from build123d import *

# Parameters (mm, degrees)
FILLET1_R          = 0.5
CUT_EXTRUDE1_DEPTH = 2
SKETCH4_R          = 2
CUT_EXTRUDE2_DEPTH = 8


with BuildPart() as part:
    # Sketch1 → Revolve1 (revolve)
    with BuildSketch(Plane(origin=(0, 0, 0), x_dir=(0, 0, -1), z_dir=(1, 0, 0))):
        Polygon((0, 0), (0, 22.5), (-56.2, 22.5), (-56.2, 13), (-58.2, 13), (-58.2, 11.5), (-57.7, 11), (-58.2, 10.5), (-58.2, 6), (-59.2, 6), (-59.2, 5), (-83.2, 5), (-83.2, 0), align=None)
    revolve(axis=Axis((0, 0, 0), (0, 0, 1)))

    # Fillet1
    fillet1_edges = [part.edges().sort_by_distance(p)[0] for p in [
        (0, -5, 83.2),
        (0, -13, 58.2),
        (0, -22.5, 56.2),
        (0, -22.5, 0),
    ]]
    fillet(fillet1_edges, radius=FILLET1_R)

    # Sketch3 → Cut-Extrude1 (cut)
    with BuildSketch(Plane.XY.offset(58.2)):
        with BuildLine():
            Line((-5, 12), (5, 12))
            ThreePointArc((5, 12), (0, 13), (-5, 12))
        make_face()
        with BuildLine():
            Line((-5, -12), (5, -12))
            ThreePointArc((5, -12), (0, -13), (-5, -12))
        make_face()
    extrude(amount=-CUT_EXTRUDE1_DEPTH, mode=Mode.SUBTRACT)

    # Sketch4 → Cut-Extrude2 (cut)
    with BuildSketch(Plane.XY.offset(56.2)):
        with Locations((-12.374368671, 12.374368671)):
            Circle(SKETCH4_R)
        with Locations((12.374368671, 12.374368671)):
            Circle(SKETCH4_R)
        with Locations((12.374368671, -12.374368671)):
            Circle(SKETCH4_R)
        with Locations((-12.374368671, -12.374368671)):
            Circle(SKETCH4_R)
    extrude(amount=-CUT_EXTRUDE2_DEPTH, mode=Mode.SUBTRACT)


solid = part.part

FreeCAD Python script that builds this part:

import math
import FreeCAD as App
import Part
import Sketcher
from FreeCAD import Vector


def edges_at(feature, points):
    """Names of the edges that pass closest to the given points."""
    edges = feature.Shape.Edges
    near = lambda p: min(range(len(edges)), key=lambda i: edges[i].distToShape(Part.Vertex(*p))[0])
    return sorted({f"Edge{near(p) + 1}" for p in points})


def add_polygon(sketch, points):
    """Adds a closed chain of lines whose ends are joined by coincident constraints."""
    first, n = sketch.GeometryCount, len(points)
    for a, b in zip(points, points[1:] + points[:1]):
        sketch.addGeometry(Part.LineSegment(App.Vector(*a, 0), App.Vector(*b, 0)), False)
    for i in range(n):
        sketch.addConstraint(Sketcher.Constraint("Coincident", first + i, 2, first + (i + 1) % n, 1))

doc = App.newDocument("Part")
body = doc.addObject("PartDesign::Body", "Body")

# Sketch on YZ plane
sketch1 = doc.addObject("Sketcher::SketchObject", "Sketch")
body.addObject(sketch1)
sketch1.AttachmentSupport = (doc.YZ_Plane, [""])
sketch1.MapMode = "FlatFace"
add_polygon(sketch1, [(0, 0), (22.5, 0), (22.5, 56.2), (13, 56.2), (13, 58.2), (11.5, 58.2), (11, 57.7), (10.5, 58.2), (6, 58.2), (6, 59.2), (5, 59.2), (5, 83.2), (0, 83.2)])  # lines 0-12
sketch1.addConstraint(Sketcher.Constraint("Horizontal", 0))
sketch1.addConstraint(Sketcher.Constraint("Vertical", 1))
sketch1.addConstraint(Sketcher.Constraint("Horizontal", 2))
sketch1.addConstraint(Sketcher.Constraint("Vertical", 3))
sketch1.addConstraint(Sketcher.Constraint("Horizontal", 4))
sketch1.addConstraint(Sketcher.Constraint("Horizontal", 7))
sketch1.addConstraint(Sketcher.Constraint("Vertical", 8))
sketch1.addConstraint(Sketcher.Constraint("Horizontal", 9))
sketch1.addConstraint(Sketcher.Constraint("Vertical", 10))
sketch1.addConstraint(Sketcher.Constraint("Horizontal", 11))
sketch1.addConstraint(Sketcher.Constraint("Vertical", 12))
sketch1.addConstraint(Sketcher.Constraint("Coincident", 12, 2, -1, 1))
sketch1.addConstraint(Sketcher.Constraint("Perpendicular", 5, 6))
sketch1.addConstraint(Sketcher.Constraint("Horizontal", 4, 2, 6, 2))
sketch1.addConstraint(Sketcher.Constraint("Equal", 9, 8))
sketch1.addConstraint(Sketcher.Constraint("Equal", 5, 6))
sketch1.addConstraint(Sketcher.Constraint("DistanceX", 9, 2, 9, 1, 1.0))
sketch1.addConstraint(Sketcher.Constraint("DistanceX", 11, 2, 11, 1, 5.0))
sketch1.addConstraint(Sketcher.Constraint("DistanceY", 3, 1, 3, 2, 2.0))
sketch1.addConstraint(Sketcher.Constraint("DistanceY", 10, 1, 10, 2, 24.0))
sketch1.addConstraint(Sketcher.Constraint("DistanceX", 0, 1, 0, 2, 22.5))
sketch1.addConstraint(Sketcher.Constraint("DistanceX", 2, 2, 2, 1, 9.5))
sketch1.addConstraint(Sketcher.Constraint("DistanceX", 4, 2, 4, 1, 1.5))
sketch1.addConstraint(Sketcher.Constraint("DistanceX", 7, 2, 7, 1, 4.5))
sketch1.addConstraint(Sketcher.Constraint("DistanceY", 1, 1, 1, 2, 56.2))
revolution = doc.addObject("PartDesign::Revolution", "Revolution")
body.addObject(revolution)
revolution.Profile = sketch1
revolution.ReferenceAxis = (sketch1, ["V_Axis"])
revolution.Angle = 360
doc.recompute()

fillet = doc.addObject("PartDesign::Fillet", "Fillet")
body.addObject(fillet)
fillet.Base = (revolution, edges_at(revolution, [
    (0, -5, 83.2),
    (0, -13, 58.2),
    (0, -22.5, 56.2),
    (0, -22.5, 0),
]))
fillet.Radius = 0.5

# Sketch on XY plane
sketch2 = doc.addObject("Sketcher::SketchObject", "Sketch001")
body.addObject(sketch2)
sketch2.AttachmentSupport = (doc.XY_Plane, [""])
sketch2.MapMode = "FlatFace"
sketch2.AttachmentOffset = App.Placement(Vector(0, 0, 58.2), App.Rotation())
sketch2.addGeometry(Part.LineSegment(Vector(-5, 12, 0), Vector(5, 12, 0)), False)
sketch2.addGeometry(Part.ArcOfCircle(Part.Circle(Vector(0, 0, 0), Vector(0, 0, 1), 13), math.radians(67.380135), math.radians(112.619865)), False)
sketch2.addGeometry(Part.LineSegment(Vector(5, -12, 0), Vector(-5, -12, 0)), False)
sketch2.addGeometry(Part.ArcOfCircle(Part.Circle(Vector(0, 0, 0), Vector(0, 0, 1), 13), math.radians(-112.619865), math.radians(-67.380135)), False)
sketch2.addConstraint(Sketcher.Constraint("Coincident", 0, 1, 1, 2))
sketch2.addConstraint(Sketcher.Constraint("Coincident", 1, 1, 0, 2))
sketch2.addConstraint(Sketcher.Constraint("Coincident", 2, 1, 3, 2))
sketch2.addConstraint(Sketcher.Constraint("Coincident", 3, 1, 2, 2))
sketch2.addConstraint(Sketcher.Constraint("Horizontal", 0))
sketch2.addConstraint(Sketcher.Constraint("Horizontal", 2))
sketch2.addConstraint(Sketcher.Constraint("Coincident", 1, 3, -1, 1))
sketch2.addConstraint(Sketcher.Constraint("Coincident", 3, 3, -1, 1))
sketch2.addConstraint(Sketcher.Constraint("Equal", 1, 3))
sketch2.addConstraint(Sketcher.Constraint("Vertical", 1, 1, 2, 1))
sketch2.addConstraint(Sketcher.Constraint("Radius", 1, 13.0))
sketch2.addConstraint(Sketcher.Constraint("DistanceX", 0, 1, 0, 2, 10.0))
pocket1 = doc.addObject("PartDesign::Pocket", "Pocket")
body.addObject(pocket1)
pocket1.Profile = sketch2
pocket1.Length = 2

# Sketch on XY plane
sketch3 = doc.addObject("Sketcher::SketchObject", "Sketch002")
body.addObject(sketch3)
sketch3.AttachmentSupport = (doc.XY_Plane, [""])
sketch3.MapMode = "FlatFace"
sketch3.AttachmentOffset = App.Placement(Vector(0, 0, 56.2), App.Rotation())
sketch3.addGeometry(Part.Circle(Vector(-12.374369, 12.374369, 0), Vector(0, 0, 1), 2), False)
sketch3.addGeometry(Part.Circle(Vector(12.374369, 12.374369, 0), Vector(0, 0, 1), 2), False)
sketch3.addGeometry(Part.Circle(Vector(12.374369, -12.374369, 0), Vector(0, 0, 1), 2), False)
sketch3.addGeometry(Part.Circle(Vector(-12.374369, -12.374369, 0), Vector(0, 0, 1), 2), False)
sketch3.addConstraint(Sketcher.Constraint("Equal", 0, 1))
sketch3.addConstraint(Sketcher.Constraint("Equal", 1, 2))
sketch3.addConstraint(Sketcher.Constraint("Equal", 2, 3))
sketch3.addConstraint(Sketcher.Constraint("Symmetric", 0, 3, 2, 3, -1, 1))
sketch3.addConstraint(Sketcher.Constraint("Symmetric", 1, 3, 3, 3, -1, 1))
sketch3.addConstraint(Sketcher.Constraint("Symmetric", 0, 3, 1, 3, -2))
sketch3.addConstraint(Sketcher.Constraint("Diameter", 0, 4.0))
sketch3.addConstraint(Sketcher.Constraint("DistanceX", 0, 3, -1, 1, 12.374369))
sketch3.addConstraint(Sketcher.Constraint("DistanceY", -1, 1, 0, 3, 12.374369))
pocket2 = doc.addObject("PartDesign::Pocket", "Pocket001")
body.addObject(pocket2)
pocket2.Profile = sketch3
pocket2.Length = 8

doc.recompute()
